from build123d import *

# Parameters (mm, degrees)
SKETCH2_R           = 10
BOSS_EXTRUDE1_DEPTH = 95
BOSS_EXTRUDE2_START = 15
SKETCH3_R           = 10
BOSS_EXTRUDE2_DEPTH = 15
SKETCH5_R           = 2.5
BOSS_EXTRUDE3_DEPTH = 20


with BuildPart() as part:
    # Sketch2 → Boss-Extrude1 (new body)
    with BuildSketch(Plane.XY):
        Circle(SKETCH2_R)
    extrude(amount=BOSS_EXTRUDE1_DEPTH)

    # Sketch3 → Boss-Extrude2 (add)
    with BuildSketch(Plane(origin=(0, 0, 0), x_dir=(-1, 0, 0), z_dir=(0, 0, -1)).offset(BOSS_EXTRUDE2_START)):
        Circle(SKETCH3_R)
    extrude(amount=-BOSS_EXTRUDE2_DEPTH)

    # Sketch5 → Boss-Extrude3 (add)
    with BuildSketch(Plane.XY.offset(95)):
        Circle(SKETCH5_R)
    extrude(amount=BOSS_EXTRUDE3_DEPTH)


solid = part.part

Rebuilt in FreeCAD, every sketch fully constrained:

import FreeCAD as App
import Part
import Sketcher
Q = App.Units.Quantity

doc = App.newDocument("Part")
body = doc.addObject("PartDesign::Body", "Body")

sketch1 = body.newObject("Sketcher::SketchObject", "Sketch")
sketch1.AttachmentSupport = (doc.getObject("XY_Plane"), [""])
sketch1.MapMode = "FlatFace"
sketch1.addGeometry(Part.Circle(App.Vector(0, 0, 0), App.Vector(0, 0, 1), 10), False)
sketch1.addConstraint(Sketcher.Constraint("Coincident", 0, 3, -1, 1))
sketch1.addConstraint(Sketcher.Constraint("Diameter", 0, Q("20 mm")))
pad1 = body.newObject("PartDesign::Pad", "Pad")
pad1.Profile = sketch1
pad1.Length = 95

sketch2 = body.newObject("Sketcher::SketchObject", "Sketch001")
sketch2.AttachmentSupport = (doc.getObject("XY_Plane"), [""])
sketch2.MapMode = "FlatFace"
sketch2.AttachmentOffset = App.Placement(App.Vector(0, 0, -15), App.Rotation())
sketch2.addGeometry(Part.Circle(App.Vector(0, 0, 0), App.Vector(0, 0, 1), 10), False)
sketch2.addConstraint(Sketcher.Constraint("Coincident", 0, 3, -1, 1))
sketch2.addConstraint(Sketcher.Constraint("Diameter", 0, Q("20 mm")))
pad2 = body.newObject("PartDesign::Pad", "Pad001")
pad2.Profile = sketch2
pad2.Length = 15

sketch3 = body.newObject("Sketcher::SketchObject", "Sketch002")
sketch3.AttachmentSupport = (doc.getObject("XY_Plane"), [""])
sketch3.MapMode = "FlatFace"
sketch3.AttachmentOffset = App.Placement(App.Vector(0, 0, 95), App.Rotation())
sketch3.addGeometry(Part.Circle(App.Vector(0, 0, 0), App.Vector(0, 0, 1), 2.5), False)
sketch3.addConstraint(Sketcher.Constraint("Coincident", 0, 3, -1, 1))
sketch3.addConstraint(Sketcher.Constraint("Diameter", 0, Q("5 mm")))
pad3 = body.newObject("PartDesign::Pad", "Pad002")
pad3.Profile = sketch3
pad3.Length = 20

doc.recompute()
